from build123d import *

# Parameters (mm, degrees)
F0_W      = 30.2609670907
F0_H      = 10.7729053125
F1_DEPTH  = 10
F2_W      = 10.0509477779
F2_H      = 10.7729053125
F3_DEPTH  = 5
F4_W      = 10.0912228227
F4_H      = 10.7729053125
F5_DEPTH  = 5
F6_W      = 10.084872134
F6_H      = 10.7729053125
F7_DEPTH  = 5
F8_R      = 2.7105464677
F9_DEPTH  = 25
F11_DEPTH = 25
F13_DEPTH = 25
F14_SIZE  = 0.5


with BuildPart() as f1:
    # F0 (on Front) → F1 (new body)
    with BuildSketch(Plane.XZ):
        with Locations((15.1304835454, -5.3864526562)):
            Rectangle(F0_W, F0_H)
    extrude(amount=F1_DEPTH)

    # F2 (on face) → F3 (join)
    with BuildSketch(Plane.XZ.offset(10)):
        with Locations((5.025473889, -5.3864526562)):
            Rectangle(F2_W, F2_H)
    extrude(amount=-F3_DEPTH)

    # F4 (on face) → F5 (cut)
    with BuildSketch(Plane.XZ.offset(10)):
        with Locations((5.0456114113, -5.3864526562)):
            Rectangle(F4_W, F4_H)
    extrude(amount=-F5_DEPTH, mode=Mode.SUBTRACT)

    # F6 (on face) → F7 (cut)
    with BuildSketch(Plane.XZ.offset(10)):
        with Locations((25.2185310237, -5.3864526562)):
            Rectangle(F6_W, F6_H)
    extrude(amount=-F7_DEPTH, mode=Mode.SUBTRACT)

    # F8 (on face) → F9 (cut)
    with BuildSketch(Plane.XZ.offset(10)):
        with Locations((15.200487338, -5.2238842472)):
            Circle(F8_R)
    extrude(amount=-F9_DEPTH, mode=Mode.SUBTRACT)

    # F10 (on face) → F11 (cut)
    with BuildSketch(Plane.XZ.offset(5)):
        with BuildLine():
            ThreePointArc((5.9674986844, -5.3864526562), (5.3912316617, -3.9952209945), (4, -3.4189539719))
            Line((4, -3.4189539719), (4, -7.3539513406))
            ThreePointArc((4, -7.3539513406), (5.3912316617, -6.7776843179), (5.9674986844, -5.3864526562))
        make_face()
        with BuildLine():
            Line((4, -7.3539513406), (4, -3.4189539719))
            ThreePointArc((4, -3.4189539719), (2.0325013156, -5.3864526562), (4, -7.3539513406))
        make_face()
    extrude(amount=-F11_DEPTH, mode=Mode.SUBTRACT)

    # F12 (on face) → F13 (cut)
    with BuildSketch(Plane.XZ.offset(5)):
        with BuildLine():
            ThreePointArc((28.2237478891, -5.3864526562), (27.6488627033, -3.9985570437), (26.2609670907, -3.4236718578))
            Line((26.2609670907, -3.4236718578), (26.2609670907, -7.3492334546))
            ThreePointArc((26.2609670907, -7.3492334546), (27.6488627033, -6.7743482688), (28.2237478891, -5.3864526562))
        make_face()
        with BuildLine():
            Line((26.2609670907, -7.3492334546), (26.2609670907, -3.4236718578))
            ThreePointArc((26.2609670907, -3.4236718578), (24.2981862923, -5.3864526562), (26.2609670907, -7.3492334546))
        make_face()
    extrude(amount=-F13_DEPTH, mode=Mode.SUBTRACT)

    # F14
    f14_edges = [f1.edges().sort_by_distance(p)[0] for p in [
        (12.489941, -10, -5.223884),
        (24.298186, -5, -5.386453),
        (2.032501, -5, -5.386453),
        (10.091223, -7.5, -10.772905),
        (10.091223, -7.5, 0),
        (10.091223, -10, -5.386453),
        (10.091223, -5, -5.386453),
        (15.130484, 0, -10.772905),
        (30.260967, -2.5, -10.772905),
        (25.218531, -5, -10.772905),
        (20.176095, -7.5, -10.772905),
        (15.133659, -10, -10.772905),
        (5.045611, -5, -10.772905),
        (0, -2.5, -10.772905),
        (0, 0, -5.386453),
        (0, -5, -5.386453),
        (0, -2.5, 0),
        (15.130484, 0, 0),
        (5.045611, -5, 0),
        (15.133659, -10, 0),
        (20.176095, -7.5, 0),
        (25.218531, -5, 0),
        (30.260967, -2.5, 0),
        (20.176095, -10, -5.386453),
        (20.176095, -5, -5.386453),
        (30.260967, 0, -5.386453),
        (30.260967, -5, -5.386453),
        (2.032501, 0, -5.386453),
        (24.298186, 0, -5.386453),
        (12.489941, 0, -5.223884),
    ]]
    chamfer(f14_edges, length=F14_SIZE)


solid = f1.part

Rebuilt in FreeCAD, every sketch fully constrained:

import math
import FreeCAD as App
import Part
import Sketcher

V = App.Vector
Q = App.Units.Quantity

doc = App.newDocument("Part")
body = doc.addObject("PartDesign::Body", "Body")

# Sketch on XZ plane
sketch1 = body.newObject("Sketcher::SketchObject", "Sketch")
sketch1.AttachmentSupport = (doc.getObject("XZ_Plane"), [""])
sketch1.MapMode = "FlatFace"
sketch1.addGeometry([
    Part.LineSegment(V(0, 0, 0), V(0, -10.772905, 0)),
    Part.LineSegment(V(0, -10.772905, 0), V(30.260967, -10.772905, 0)),
    Part.LineSegment(V(30.260967, -10.772905, 0), V(30.260967, 0, 0)),
    Part.LineSegment(V(30.260967, 0, 0), V(0, 0, 0)),
], False)
sketch1.addConstraint([
    Sketcher.Constraint("Coincident", 0, 2, 1, 1),
    Sketcher.Constraint("Coincident", 1, 2, 2, 1),
    Sketcher.Constraint("Coincident", 2, 2, 3, 1),
    Sketcher.Constraint("Coincident", 3, 2, 0, 1),
    Sketcher.Constraint("Vertical", 0),
    Sketcher.Constraint("Horizontal", 1),
    Sketcher.Constraint("Vertical", 2),
    Sketcher.Constraint("Horizontal", 3),
    Sketcher.Constraint("Coincident", 3, 2, -1, 1),
    Sketcher.Constraint("DistanceX", 1, 1, 1, 2, Q("30.260967 mm")),
    Sketcher.Constraint("DistanceY", 0, 2, 0, 1, Q("10.772905 mm")),
])
pad1 = body.newObject("PartDesign::Pad", "Pad")
pad1.Profile = sketch1
pad1.Length = 10

# Sketch on XZ plane
sketch2 = body.newObject("Sketcher::SketchObject", "Sketch001")
sketch2.AttachmentSupport = (doc.getObject("XZ_Plane"), [""])
sketch2.MapMode = "FlatFace"
sketch2.AttachmentOffset = App.Placement(V(0, 0, 10), App.Rotation())
sketch2.addGeometry([
    Part.LineSegment(V(0, 0, 0), V(0, -10.772905, 0)),
    Part.LineSegment(V(0, -10.772905, 0), V(10.050948, -10.772905, 0)),
    Part.LineSegment(V(10.050948, -10.772905, 0), V(10.050948, 0, 0)),
    Part.LineSegment(V(10.050948, 0, 0), V(0, 0, 0)),
], False)
sketch2.addConstraint([
    Sketcher.Constraint("Coincident", 0, 2, 1, 1),
    Sketcher.Constraint("Coincident", 1, 2, 2, 1),
    Sketcher.Constraint("Coincident", 2, 2, 3, 1),
    Sketcher.Constraint("Coincident", 3, 2, 0, 1),
    Sketcher.Constraint("Vertical", 0),
    Sketcher.Constraint("Horizontal", 1),
    Sketcher.Constraint("Vertical", 2),
    Sketcher.Constraint("Horizontal", 3),
    Sketcher.Constraint("Coincident", 3, 2, -1, 1),
    Sketcher.Constraint("DistanceX", 1, 1, 1, 2, Q("10.050948 mm")),
    Sketcher.Constraint("DistanceY", 0, 2, 0, 1, Q("10.772905 mm")),
])
pad2 = body.newObject("PartDesign::Pad", "Pad001")
pad2.Profile = sketch2
pad2.Length = 5
pad2.Reversed = True

# Sketch on XZ plane
sketch3 = body.newObject("Sketcher::SketchObject", "Sketch002")
sketch3.AttachmentSupport = (doc.getObject("XZ_Plane"), [""])
sketch3.MapMode = "FlatFace"
sketch3.AttachmentOffset = App.Placement(V(0, 0, 10), App.Rotation())
sketch3.addGeometry([
    Part.LineSegment(V(0, 0, 0), V(0, -10.772905, 0)),
    Part.LineSegment(V(0, -10.772905, 0), V(10.091223, -10.772905, 0)),
    Part.LineSegment(V(10.091223, -10.772905, 0), V(10.091223, 0, 0)),
    Part.LineSegment(V(10.091223, 0, 0), V(0, 0, 0)),
], False)
sketch3.addConstraint([
    Sketcher.Constraint("Coincident", 0, 2, 1, 1),
    Sketcher.Constraint("Coincident", 1, 2, 2, 1),
    Sketcher.Constraint("Coincident", 2, 2, 3, 1),
    Sketcher.Constraint("Coincident", 3, 2, 0, 1),
    Sketcher.Constraint("Vertical", 0),
    Sketcher.Constraint("Horizontal", 1),
    Sketcher.Constraint("Vertical", 2),
    Sketcher.Constraint("Horizontal", 3),
    Sketcher.Constraint("Coincident", 3, 2, -1, 1),
    Sketcher.Constraint("DistanceX", 1, 1, 1, 2, Q("10.091223 mm")),
    Sketcher.Constraint("DistanceY", 0, 2, 0, 1, Q("10.772905 mm")),
])
pocket1 = body.newObject("PartDesign::Pocket", "Pocket")
pocket1.Profile = sketch3
pocket1.Length = 5

# Sketch on XZ plane
sketch4 = body.newObject("Sketcher::SketchObject", "Sketch003")
sketch4.AttachmentSupport = (doc.getObject("XZ_Plane"), [""])
sketch4.MapMode = "FlatFace"
sketch4.AttachmentOffset = App.Placement(V(0, 0, 10), App.Rotation())
sketch4.addGeometry([
    Part.LineSegment(V(20.176095, 0, 0), V(20.176095, -10.772905, 0)),
    Part.LineSegment(V(20.176095, -10.772905, 0), V(30.260967, -10.772905, 0)),
    Part.LineSegment(V(30.260967, -10.772905, 0), V(30.260967, 0, 0)),
    Part.LineSegment(V(30.260967, 0, 0), V(20.176095, 0, 0)),
], False)
sketch4.addConstraint([
    Sketcher.Constraint("Coincident", 0, 2, 1, 1),
    Sketcher.Constraint("Coincident", 1, 2, 2, 1),
    Sketcher.Constraint("Coincident", 2, 2, 3, 1),
    Sketcher.Constraint("Coincident", 3, 2, 0, 1),
    Sketcher.Constraint("Vertical", 0),
    Sketcher.Constraint("Horizontal", 1),
    Sketcher.Constraint("Vertical", 2),
    Sketcher.Constraint("Horizontal", 3),
    Sketcher.Constraint("PointOnObject", 2, 2, -1),
    Sketcher.Constraint("DistanceX", 1, 1, 1, 2, Q("10.084872 mm")),
    Sketcher.Constraint("DistanceY", 0, 2, 0, 1, Q("10.772905 mm")),
    Sketcher.Constraint("DistanceX", -1, 1, 0, 2, Q("20.176095 mm")),
])
pocket2 = body.newObject("PartDesign::Pocket", "Pocket001")
pocket2.Profile = sketch4
pocket2.Length = 5

# Sketch on XZ plane
sketch5 = body.newObject("Sketcher::SketchObject", "Sketch004")
sketch5.AttachmentSupport = (doc.getObject("XZ_Plane"), [""])
sketch5.MapMode = "FlatFace"
sketch5.AttachmentOffset = App.Placement(V(0, 0, 10), App.Rotation())
sketch5.addGeometry(Part.Circle(V(15.200487, -5.223884, 0), V(0, 0, 1), 2.710546), False)
sketch5.addConstraint([
    Sketcher.Constraint("Diameter", 0, Q("5.421093 mm")),
    Sketcher.Constraint("DistanceX", -1, 1, 0, 3, Q("15.200487 mm")),
    Sketcher.Constraint("DistanceY", 0, 3, -1, 1, Q("5.223884 mm")),
])
pocket3 = body.newObject("PartDesign::Pocket", "Pocket002")
pocket3.Profile = sketch5
pocket3.Length = 25

# Sketch on XZ plane
sketch6 = body.newObject("Sketcher::SketchObject", "Sketch005")
sketch6.AttachmentSupport = (doc.getObject("XZ_Plane"), [""])
sketch6.MapMode = "FlatFace"
sketch6.AttachmentOffset = App.Placement(V(0, 0, 5), App.Rotation())
sketch6.addGeometry([
    Part.ArcOfCircle(Part.Circle(V(4, -5.386453, 0), V(0, 0, 1), 1.967499), math.radians(0), math.radians(90)),
    Part.ArcOfCircle(Part.Circle(V(4, -5.386453, 0), V(0, 0, 1), 1.967499), math.radians(90), math.radians(360)),
], False)
sketch6.addConstraint([
    Sketcher.Constraint("Tangent", 0, 1, 1, 2),
    Sketcher.Constraint("Coincident", 1, 1, 0, 2),
    Sketcher.Constraint("Horizontal", 1, 3, 0, 1),
    Sketcher.Constraint("Vertical", 0, 3, 1, 1),
    Sketcher.Constraint("DistanceX", -1, 1, 0, 3, Q("4 mm")),
    Sketcher.Constraint("Radius", 0, Q("1.967499 mm")),
    Sketcher.Constraint("DistanceY", 0, 3, -1, 1, Q("5.386453 mm")),
])
pocket4 = body.newObject("PartDesign::Pocket", "Pocket003")
pocket4.Profile = sketch6
pocket4.Length = 25

# Sketch on XZ plane
sketch7 = body.newObject("Sketcher::SketchObject", "Sketch006")
sketch7.AttachmentSupport = (doc.getObject("XZ_Plane"), [""])
sketch7.MapMode = "FlatFace"
sketch7.AttachmentOffset = App.Placement(V(0, 0, 5), App.Rotation())
sketch7.addGeometry([
    Part.ArcOfCircle(Part.Circle(V(26.260967, -5.386453, 0), V(0, 0, 1), 1.962781), math.radians(0), math.radians(90)),
    Part.ArcOfCircle(Part.Circle(V(26.260967, -5.386453, 0), V(0, 0, 1), 1.962781), math.radians(90), math.radians(270)),
    Part.ArcOfCircle(Part.Circle(V(26.260967, -5.386453, 0), V(0, 0, 1), 1.962781), math.radians(-90), math.radians(0)),
], False)
sketch7.addConstraint([
    Sketcher.Constraint("Tangent", 0, 2, 1, 1),
    Sketcher.Constraint("Tangent", 1, 2, 2, 1),
    Sketcher.Constraint("Tangent", 2, 2, 0, 1),
    Sketcher.Constraint("Horizontal", 1, 3, 2, 2),
    Sketcher.Constraint("Vertical", 2, 3, 0, 2),
    Sketcher.Constraint("Vertical", 0, 2, 1, 2),
    Sketcher.Constraint("Radius", 0, Q("1.962781 mm")),
    Sketcher.Constraint("DistanceY", 0, 2, -1, 1, Q("3.423672 mm")),
    Sketcher.Constraint("DistanceX", -1, 1, 0, 3, Q("26.260967 mm")),
])
pocket5 = body.newObject("PartDesign::Pocket", "Pocket004")
pocket5.Profile = sketch7
pocket5.Length = 25
doc.recompute()

chamfer = body.newObject("PartDesign::Chamfer", "Chamfer")
chamfer.Base = (pocket5, ["Edge1"])
chamfer.UseAllEdges = True
chamfer.Size = 0.5

doc.recompute()
